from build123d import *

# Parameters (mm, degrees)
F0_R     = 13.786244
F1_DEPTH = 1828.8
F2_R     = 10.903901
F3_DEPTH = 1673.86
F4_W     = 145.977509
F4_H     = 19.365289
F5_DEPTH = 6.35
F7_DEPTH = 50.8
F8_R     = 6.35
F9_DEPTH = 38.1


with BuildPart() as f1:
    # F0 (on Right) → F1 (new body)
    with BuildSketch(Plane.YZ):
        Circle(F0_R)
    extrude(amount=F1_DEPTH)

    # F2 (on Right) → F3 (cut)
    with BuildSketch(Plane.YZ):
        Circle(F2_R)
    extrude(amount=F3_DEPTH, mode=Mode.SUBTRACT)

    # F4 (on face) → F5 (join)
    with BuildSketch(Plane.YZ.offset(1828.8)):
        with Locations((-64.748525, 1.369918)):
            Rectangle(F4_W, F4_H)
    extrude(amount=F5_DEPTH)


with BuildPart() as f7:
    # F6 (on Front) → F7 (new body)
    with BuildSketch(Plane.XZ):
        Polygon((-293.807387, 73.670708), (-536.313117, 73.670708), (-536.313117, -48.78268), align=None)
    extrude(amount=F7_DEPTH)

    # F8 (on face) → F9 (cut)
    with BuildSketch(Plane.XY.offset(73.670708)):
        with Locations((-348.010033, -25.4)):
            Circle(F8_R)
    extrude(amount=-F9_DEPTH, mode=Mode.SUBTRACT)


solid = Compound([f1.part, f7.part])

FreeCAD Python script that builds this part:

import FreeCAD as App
import Part
import Sketcher
from FreeCAD import Vector
Q = App.Units.Quantity

doc = App.newDocument("Part")
params = doc.addObject("Spreadsheet::Sheet", "Params")
for row, (alias, value) in enumerate([
    ("pad1_length", "72 in"),
    ("pocket1_length", "65.9 in"),
    ("pad2_length", "0.25 in"),
    ("pad3_length", "2 in"),
    ("sketch5_diameter", "0.5 in"),
    ("pocket2_length", "1.5 in"),
], start=1):
    params.set(f"A{row}", alias)
    params.set(f"B{row}", "=" + value)
    params.setAlias(f"B{row}", alias)

body = doc.addObject("PartDesign::Body", "Body")

# Sketch on YZ plane
sketch1 = body.newObject("Sketcher::SketchObject", "Sketch")
sketch1.AttachmentSupport = (doc.getObject("YZ_Plane"), [""])
sketch1.MapMode = "FlatFace"
sketch1.addGeometry(Part.Circle(Vector(0, 0, 0), Vector(0, 0, 1), 13.786244), False)
sketch1.addConstraint(Sketcher.Constraint("Coincident", 0, 3, -1, 1))
sketch1.addConstraint(Sketcher.Constraint("Diameter", 0, Q("27.572488 mm")))
pad1 = body.newObject("PartDesign::Pad", "Pad")
pad1.Profile = sketch1
pad1.setExpression("Length", "Params.pad1_length")

# Sketch on YZ plane
sketch2 = body.newObject("Sketcher::SketchObject", "Sketch001")
sketch2.AttachmentSupport = (doc.getObject("YZ_Plane"), [""])
sketch2.MapMode = "FlatFace"
sketch2.addGeometry(Part.Circle(Vector(0, 0, 0), Vector(0, 0, 1), 10.903901), False)
sketch2.addConstraint(Sketcher.Constraint("Coincident", 0, 3, -1, 1))
sketch2.addConstraint(Sketcher.Constraint("Diameter", 0, Q("21.807802 mm")))
pocket1 = body.newObject("PartDesign::Pocket", "Pocket")
pocket1.Profile = sketch2
pocket1.setExpression("Length", "Params.pocket1_length")
pocket1.Reversed = True

# Sketch on YZ plane
sketch3 = body.newObject("Sketcher::SketchObject", "Sketch002")
sketch3.AttachmentSupport = (doc.getObject("YZ_Plane"), [""])
sketch3.MapMode = "FlatFace"
sketch3.AttachmentOffset = App.Placement(Vector(0, 0, 72 * 25.4), App.Rotation())
sketch3.addGeometry(Part.LineSegment(Vector(-137.737279, 11.052563, 0), Vector(-137.737279, -8.312727, 0)), False)
sketch3.addGeometry(Part.LineSegment(Vector(-137.737279, -8.312727, 0), Vector(8.240229, -8.312727, 0)), False)
sketch3.addGeometry(Part.LineSegment(Vector(8.240229, -8.312727, 0), Vector(8.240229, 11.052563, 0)), False)
sketch3.addGeometry(Part.LineSegment(Vector(8.240229, 11.052563, 0), Vector(-137.737279, 11.052563, 0)), False)
sketch3.addConstraint(Sketcher.Constraint("Coincident", 0, 2, 1, 1))
sketch3.addConstraint(Sketcher.Constraint("Coincident", 1, 2, 2, 1))
sketch3.addConstraint(Sketcher.Constraint("Coincident", 2, 2, 3, 1))
sketch3.addConstraint(Sketcher.Constraint("Coincident", 3, 2, 0, 1))
sketch3.addConstraint(Sketcher.Constraint("Vertical", 0))
sketch3.addConstraint(Sketcher.Constraint("Horizontal", 1))
sketch3.addConstraint(Sketcher.Constraint("Vertical", 2))
sketch3.addConstraint(Sketcher.Constraint("Horizontal", 3))
sketch3.addConstraint(Sketcher.Constraint("DistanceX", 1, 1, 1, 2, Q("145.977509 mm")))
sketch3.addConstraint(Sketcher.Constraint("DistanceY", 0, 2, 0, 1, Q("19.365289 mm")))
sketch3.addConstraint(Sketcher.Constraint("DistanceX", 0, 2, -1, 1, Q("137.737279 mm")))
sketch3.addConstraint(Sketcher.Constraint("DistanceY", 0, 2, -1, 1, Q("8.312727 mm")))
pad2 = body.newObject("PartDesign::Pad", "Pad001")
pad2.Profile = sketch3
pad2.setExpression("Length", "Params.pad2_length")
body2 = doc.addObject("PartDesign::Body", "Body001")

# Sketch on XZ plane
sketch4 = body2.newObject("Sketcher::SketchObject", "Sketch003")
sketch4.AttachmentSupport = (doc.getObject("XZ_Plane001"), [""])
sketch4.MapMode = "FlatFace"
sketch4.addGeometry(Part.LineSegment(Vector(-293.807387, 73.670708, 0), Vector(-536.313117, 73.670708, 0)), False)
sketch4.addGeometry(Part.LineSegment(Vector(-536.313117, 73.670708, 0), Vector(-536.313117, -48.78268, 0)), False)
sketch4.addGeometry(Part.LineSegment(Vector(-536.313117, -48.78268, 0), Vector(-293.807387, 73.670708, 0)), False)
sketch4.addConstraint(Sketcher.Constraint("Coincident", 0, 2, 1, 1))
sketch4.addConstraint(Sketcher.Constraint("Coincident", 1, 2, 2, 1))
sketch4.addConstraint(Sketcher.Constraint("Coincident", 2, 2, 0, 1))
sketch4.addConstraint(Sketcher.Constraint("Horizontal", 0))
sketch4.addConstraint(Sketcher.Constraint("Vertical", 1))
sketch4.addConstraint(Sketcher.Constraint("DistanceX", 0, 2, 0, 1, Q("242.50573 mm")))
sketch4.addConstraint(Sketcher.Constraint("DistanceY", 1, 2, 1, 1, Q("122.453388 mm")))
sketch4.addConstraint(Sketcher.Constraint("DistanceY", -1, 1, 0, 2, Q("73.670708 mm")))
sketch4.addConstraint(Sketcher.Constraint("DistanceX", 0, 2, -1, 1, Q("536.313117 mm")))
pad3 = body2.newObject("PartDesign::Pad", "Pad002")
pad3.Profile = sketch4
pad3.setExpression("Length", "Params.pad3_length")

# Sketch on XY plane
sketch5 = body2.newObject("Sketcher::SketchObject", "Sketch004")
sketch5.AttachmentSupport = (doc.getObject("XY_Plane001"), [""])
sketch5.MapMode = "FlatFace"
sketch5.AttachmentOffset = App.Placement(Vector(0, 0, 73.670708), App.Rotation())
sketch5.addGeometry(Part.Circle(Vector(-348.010033, -25.4, 0), Vector(0, 0, 1), 6.35), False)
sketch5.addConstraint(Sketcher.Constraint("Diameter", 0, Q("0.5 in")))
sketch5.addConstraint(Sketcher.Constraint("DistanceY", 0, 3, -1, 1, Q("1 in")))
sketch5.addConstraint(Sketcher.Constraint("DistanceX", 0, 3, -1, 1, Q("348.010033 mm")))
sketch5.setExpression("Constraints[0]", "Params.sketch5_diameter")
pocket2 = body2.newObject("PartDesign::Pocket", "Pocket001")
pocket2.Profile = sketch5
pocket2.setExpression("Length", "Params.pocket2_length")

doc.recompute()
